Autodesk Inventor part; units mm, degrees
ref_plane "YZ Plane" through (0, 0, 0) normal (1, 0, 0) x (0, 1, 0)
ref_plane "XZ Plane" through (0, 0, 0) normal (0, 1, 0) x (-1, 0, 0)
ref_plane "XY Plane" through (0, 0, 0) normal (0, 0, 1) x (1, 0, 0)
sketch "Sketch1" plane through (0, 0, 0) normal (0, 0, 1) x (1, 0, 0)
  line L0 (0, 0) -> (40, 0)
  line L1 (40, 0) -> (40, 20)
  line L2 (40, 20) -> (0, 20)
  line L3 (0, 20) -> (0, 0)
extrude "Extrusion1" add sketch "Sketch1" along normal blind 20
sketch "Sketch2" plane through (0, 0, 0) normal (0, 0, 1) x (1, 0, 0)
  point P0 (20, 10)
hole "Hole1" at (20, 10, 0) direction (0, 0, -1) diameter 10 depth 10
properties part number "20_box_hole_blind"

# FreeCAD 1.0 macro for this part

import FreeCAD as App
import Part
import Sketcher
from FreeCAD import Vector


def add_polygon(sketch, points):
    """Adds a closed chain of lines whose ends are joined by coincident constraints."""
    first, n = sketch.GeometryCount, len(points)
    for a, b in zip(points, points[1:] + points[:1]):
        sketch.addGeometry(Part.LineSegment(App.Vector(*a, 0), App.Vector(*b, 0)), False)
    for i in range(n):
        sketch.addConstraint(Sketcher.Constraint("Coincident", first + i, 2, first + (i + 1) % n, 1))

doc = App.newDocument("Part")
body = doc.addObject("PartDesign::Body", "Body")

sketch1 = body.newObject("Sketcher::SketchObject", "Sketch")
sketch1.AttachmentSupport = (doc.getObject("XY_Plane"), [""])
sketch1.MapMode = "FlatFace"
add_polygon(sketch1, [(0, 20), (0, 0), (40, 0), (40, 20)])
sketch1.addConstraint([
    Sketcher.Constraint("Vertical", 0),
    Sketcher.Constraint("Horizontal", 1),
    Sketcher.Constraint("Vertical", 2),
    Sketcher.Constraint("Horizontal", 3),
    Sketcher.Constraint("Coincident", 0, 2, -1, 1),
    Sketcher.Constraint("DistanceX", 1, 1, 1, 2, 40.0),
    Sketcher.Constraint("DistanceY", 0, 2, 0, 1, 20.0),
])
pad1 = body.newObject("PartDesign::Pad", "Pad")
pad1.Profile = sketch1
pad1.Length = 20

sketch2 = body.newObject("Sketcher::SketchObject", "Sketch001")
sketch2.AttachmentSupport = (doc.getObject("XY_Plane"), [""])
sketch2.MapMode = "FlatFace"
sketch2.addGeometry(Part.Circle(Vector(20, 10, 0), Vector(0, 0, 1), 5), False)
sketch2.addConstraint([
    Sketcher.Constraint("Diameter", 0, 10.0),
    Sketcher.Constraint("DistanceX", -1, 1, 0, 3, 20.0),
    Sketcher.Constraint("DistanceY", -1, 1, 0, 3, 10.0),
])
doc.recompute()
hole = body.newObject("PartDesign::Hole", "Hole")
hole.Profile = sketch2
hole.ThreadType = "None"
hole.Diameter = 10
hole.DepthType = "Dimension"
hole.Depth = 10
hole.DrillPoint = "Flat"

doc.recompute()
